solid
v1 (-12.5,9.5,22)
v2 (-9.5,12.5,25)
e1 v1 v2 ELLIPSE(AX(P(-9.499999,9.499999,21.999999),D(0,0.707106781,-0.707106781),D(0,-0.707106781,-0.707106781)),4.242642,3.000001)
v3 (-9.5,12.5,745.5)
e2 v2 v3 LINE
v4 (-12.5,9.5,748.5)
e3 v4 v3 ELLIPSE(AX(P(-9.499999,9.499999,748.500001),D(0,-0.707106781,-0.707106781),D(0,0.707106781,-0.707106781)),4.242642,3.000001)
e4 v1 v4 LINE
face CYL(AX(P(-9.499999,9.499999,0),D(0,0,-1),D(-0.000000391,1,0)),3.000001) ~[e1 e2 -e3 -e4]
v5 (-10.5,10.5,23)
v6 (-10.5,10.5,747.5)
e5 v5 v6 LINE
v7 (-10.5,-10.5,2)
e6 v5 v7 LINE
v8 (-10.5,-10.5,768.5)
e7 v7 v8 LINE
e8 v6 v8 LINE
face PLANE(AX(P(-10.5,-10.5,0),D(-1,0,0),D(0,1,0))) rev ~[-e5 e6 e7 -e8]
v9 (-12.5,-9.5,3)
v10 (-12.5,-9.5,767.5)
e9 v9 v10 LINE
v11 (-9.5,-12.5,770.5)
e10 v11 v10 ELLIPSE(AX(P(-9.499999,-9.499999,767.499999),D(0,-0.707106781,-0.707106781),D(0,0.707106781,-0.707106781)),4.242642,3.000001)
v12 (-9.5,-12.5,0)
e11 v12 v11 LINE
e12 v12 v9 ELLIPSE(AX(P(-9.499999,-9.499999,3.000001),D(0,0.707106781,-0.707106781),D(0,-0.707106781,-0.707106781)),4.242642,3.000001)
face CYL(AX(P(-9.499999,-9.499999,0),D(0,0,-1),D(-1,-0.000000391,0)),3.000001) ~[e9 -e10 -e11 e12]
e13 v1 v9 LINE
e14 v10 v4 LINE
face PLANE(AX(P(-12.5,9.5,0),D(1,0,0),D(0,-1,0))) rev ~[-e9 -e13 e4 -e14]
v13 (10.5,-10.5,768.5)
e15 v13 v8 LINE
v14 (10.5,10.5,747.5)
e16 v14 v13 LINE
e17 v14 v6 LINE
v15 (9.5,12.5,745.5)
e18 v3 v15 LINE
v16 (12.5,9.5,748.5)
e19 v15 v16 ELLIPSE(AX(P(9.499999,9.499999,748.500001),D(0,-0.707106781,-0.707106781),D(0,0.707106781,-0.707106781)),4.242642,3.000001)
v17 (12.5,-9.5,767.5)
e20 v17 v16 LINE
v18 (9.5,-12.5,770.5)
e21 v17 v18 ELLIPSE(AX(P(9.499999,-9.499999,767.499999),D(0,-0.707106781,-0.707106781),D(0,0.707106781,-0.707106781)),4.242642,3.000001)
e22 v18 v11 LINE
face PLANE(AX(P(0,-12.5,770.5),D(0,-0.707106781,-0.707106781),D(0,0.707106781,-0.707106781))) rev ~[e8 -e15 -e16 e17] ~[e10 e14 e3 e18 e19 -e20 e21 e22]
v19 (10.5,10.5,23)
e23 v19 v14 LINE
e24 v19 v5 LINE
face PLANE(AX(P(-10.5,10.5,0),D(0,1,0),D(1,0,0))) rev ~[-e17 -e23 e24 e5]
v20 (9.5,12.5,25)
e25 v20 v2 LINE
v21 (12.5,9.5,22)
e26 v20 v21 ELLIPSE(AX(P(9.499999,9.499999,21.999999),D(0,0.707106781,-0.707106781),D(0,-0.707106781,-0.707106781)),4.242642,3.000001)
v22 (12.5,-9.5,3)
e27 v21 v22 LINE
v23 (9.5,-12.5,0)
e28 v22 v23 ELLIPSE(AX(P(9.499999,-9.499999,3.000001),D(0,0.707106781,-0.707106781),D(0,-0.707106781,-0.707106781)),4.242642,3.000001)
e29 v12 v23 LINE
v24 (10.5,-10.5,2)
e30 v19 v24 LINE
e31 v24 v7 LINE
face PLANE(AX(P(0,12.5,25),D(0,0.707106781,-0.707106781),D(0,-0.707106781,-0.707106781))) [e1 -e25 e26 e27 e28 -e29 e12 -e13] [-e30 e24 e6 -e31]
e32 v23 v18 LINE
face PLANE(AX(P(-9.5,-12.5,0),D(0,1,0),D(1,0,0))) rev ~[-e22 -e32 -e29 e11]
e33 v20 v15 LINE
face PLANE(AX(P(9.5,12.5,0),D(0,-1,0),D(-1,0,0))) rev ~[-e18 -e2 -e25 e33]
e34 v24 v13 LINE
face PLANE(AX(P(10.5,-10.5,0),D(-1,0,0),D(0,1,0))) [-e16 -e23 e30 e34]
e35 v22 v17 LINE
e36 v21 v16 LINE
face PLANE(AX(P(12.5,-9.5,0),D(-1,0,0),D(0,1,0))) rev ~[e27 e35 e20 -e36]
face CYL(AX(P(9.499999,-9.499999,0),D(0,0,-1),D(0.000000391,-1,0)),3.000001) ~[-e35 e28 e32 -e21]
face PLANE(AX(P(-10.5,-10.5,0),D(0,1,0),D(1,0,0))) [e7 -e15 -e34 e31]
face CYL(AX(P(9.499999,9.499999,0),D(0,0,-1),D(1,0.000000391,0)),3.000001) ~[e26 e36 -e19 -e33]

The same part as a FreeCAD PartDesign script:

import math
import FreeCAD as App
import Part
import Sketcher
from FreeCAD import Vector


def add_polygon(sketch, points):
    """Adds a closed chain of lines whose ends are joined by coincident constraints."""
    first, n = sketch.GeometryCount, len(points)
    for a, b in zip(points, points[1:] + points[:1]):
        sketch.addGeometry(Part.LineSegment(App.Vector(*a, 0), App.Vector(*b, 0)), False)
    for i in range(n):
        sketch.addConstraint(Sketcher.Constraint("Coincident", first + i, 2, first + (i + 1) % n, 1))

doc = App.newDocument("Part")
body = doc.addObject("PartDesign::Body", "Body")

# Sketch on XY plane
sketch1 = doc.addObject("Sketcher::SketchObject", "Sketch")
body.addObject(sketch1)
sketch1.AttachmentSupport = (doc.XY_Plane, [""])
sketch1.MapMode = "FlatFace"
sketch1.addGeometry(Part.ArcOfCircle(Part.Circle(Vector(9.499999, 9.499999, 0), Vector(0, 0, 1), 3.000001), math.radians(0.000022), math.radians(89.999978)), False)  # 0
sketch1.addGeometry(Part.LineSegment(Vector(9.5, 12.5, 0), Vector(-9.5, 12.5, 0)), False)  # 1
sketch1.addGeometry(Part.ArcOfCircle(Part.Circle(Vector(-9.499999, 9.499999, 0), Vector(0, 0, 1), 3.000001), math.radians(90.000022), math.radians(179.999978)), False)  # 2
sketch1.addGeometry(Part.LineSegment(Vector(-12.5, 9.5, 0), Vector(-12.5, -9.5, 0)), False)  # 3
sketch1.addGeometry(Part.ArcOfCircle(Part.Circle(Vector(-9.499999, -9.499999, 0), Vector(0, 0, 1), 3.000001), math.radians(-179.999978), math.radians(-90.000022)), False)  # 4
sketch1.addGeometry(Part.LineSegment(Vector(-9.5, -12.5, 0), Vector(9.5, -12.5, 0)), False)  # 5
sketch1.addGeometry(Part.ArcOfCircle(Part.Circle(Vector(9.499999, -9.499999, 0), Vector(0, 0, 1), 3.000001), math.radians(-89.999978), math.radians(-0.000022)), False)  # 6
sketch1.addGeometry(Part.LineSegment(Vector(12.5, -9.5, 0), Vector(12.5, 9.5, 0)), False)  # 7
add_polygon(sketch1, [(10.5, -10.5), (-10.5, -10.5), (-10.5, 10.5), (10.5, 10.5)])  # lines 8-11
sketch1.addConstraint(Sketcher.Constraint("Tangent", 0, 2, 1, 1))
sketch1.addConstraint(Sketcher.Constraint("Tangent", 1, 2, 2, 1))
sketch1.addConstraint(Sketcher.Constraint("Tangent", 2, 2, 3, 1))
sketch1.addConstraint(Sketcher.Constraint("Tangent", 3, 2, 4, 1))
sketch1.addConstraint(Sketcher.Constraint("Tangent", 4, 2, 5, 1))
sketch1.addConstraint(Sketcher.Constraint("Tangent", 5, 2, 6, 1))
sketch1.addConstraint(Sketcher.Constraint("Tangent", 6, 2, 7, 1))
sketch1.addConstraint(Sketcher.Constraint("Tangent", 7, 2, 0, 1))
sketch1.addConstraint(Sketcher.Constraint("Horizontal", 1))
sketch1.addConstraint(Sketcher.Constraint("Vertical", 3))
sketch1.addConstraint(Sketcher.Constraint("Horizontal", 5))
sketch1.addConstraint(Sketcher.Constraint("Vertical", 7))
sketch1.addConstraint(Sketcher.Constraint("Horizontal", 8))
sketch1.addConstraint(Sketcher.Constraint("Vertical", 9))
sketch1.addConstraint(Sketcher.Constraint("Horizontal", 10))
sketch1.addConstraint(Sketcher.Constraint("Vertical", 11))
sketch1.addConstraint(Sketcher.Constraint("Equal", 0, 2))
sketch1.addConstraint(Sketcher.Constraint("Equal", 2, 4))
sketch1.addConstraint(Sketcher.Constraint("Equal", 4, 6))
sketch1.addConstraint(Sketcher.Constraint("Symmetric", 0, 3, 4, 3, -1, 1))
sketch1.addConstraint(Sketcher.Constraint("Symmetric", 8, 2, 10, 2, -1, 1))
sketch1.addConstraint(Sketcher.Constraint("Equal", 5, 3))
sketch1.addConstraint(Sketcher.Constraint("Equal", 10, 9))
sketch1.addConstraint(Sketcher.Constraint("Radius", 0, 3.000001))
sketch1.addConstraint(Sketcher.Constraint("DistanceX", 1, 2, 1, 1, 19.0))
sketch1.addConstraint(Sketcher.Constraint("DistanceX", 8, 2, 8, 1, 21.0))
pad1 = doc.addObject("PartDesign::Pad", "Pad")
body.addObject(pad1)
pad1.Profile = sketch1
pad1.Length = 800

# Sketch on YZ plane
sketch2 = doc.addObject("Sketcher::SketchObject", "Sketch001")
body.addObject(sketch2)
sketch2.AttachmentSupport = (doc.YZ_Plane, [""])
sketch2.MapMode = "FlatFace"
add_polygon(sketch2, [(12.5, 25), (-12.5, 0), (12.5, 0)])  # lines 0-2
add_polygon(sketch2, [(-12.5, 770.5), (12.5, 745.5), (12.5, 800), (-12.5, 800)])  # lines 3-6
sketch2.addConstraint(Sketcher.Constraint("Horizontal", 1))
sketch2.addConstraint(Sketcher.Constraint("Vertical", 2))
sketch2.addConstraint(Sketcher.Constraint("Vertical", 4))
sketch2.addConstraint(Sketcher.Constraint("Horizontal", 5))
sketch2.addConstraint(Sketcher.Constraint("Vertical", 6))
sketch2.addConstraint(Sketcher.Constraint("Symmetric", 0, 2, 1, 2, -1, 1))
sketch2.addConstraint(Sketcher.Constraint("Perpendicular", 0, 3))
sketch2.addConstraint(Sketcher.Constraint("Vertical", 2, 2, 3, 2))
sketch2.addConstraint(Sketcher.Constraint("Vertical", 0, 2, 5, 2))
sketch2.addConstraint(Sketcher.Constraint("Equal", 5, 2))
sketch2.addConstraint(Sketcher.Constraint("DistanceX", 1, 1, 1, 2, 25.0))
sketch2.addConstraint(Sketcher.Constraint("DistanceY", 4, 1, 4, 2, 54.5))
sketch2.addConstraint(Sketcher.Constraint("DistanceY", -1, 1, 4, 2, 800.0))
pocket1 = doc.addObject("PartDesign::Pocket", "Pocket")
body.addObject(pocket1)
pocket1.Profile = sketch2
pocket1.Length = 25
pocket1.Midplane = True

doc.recompute()
